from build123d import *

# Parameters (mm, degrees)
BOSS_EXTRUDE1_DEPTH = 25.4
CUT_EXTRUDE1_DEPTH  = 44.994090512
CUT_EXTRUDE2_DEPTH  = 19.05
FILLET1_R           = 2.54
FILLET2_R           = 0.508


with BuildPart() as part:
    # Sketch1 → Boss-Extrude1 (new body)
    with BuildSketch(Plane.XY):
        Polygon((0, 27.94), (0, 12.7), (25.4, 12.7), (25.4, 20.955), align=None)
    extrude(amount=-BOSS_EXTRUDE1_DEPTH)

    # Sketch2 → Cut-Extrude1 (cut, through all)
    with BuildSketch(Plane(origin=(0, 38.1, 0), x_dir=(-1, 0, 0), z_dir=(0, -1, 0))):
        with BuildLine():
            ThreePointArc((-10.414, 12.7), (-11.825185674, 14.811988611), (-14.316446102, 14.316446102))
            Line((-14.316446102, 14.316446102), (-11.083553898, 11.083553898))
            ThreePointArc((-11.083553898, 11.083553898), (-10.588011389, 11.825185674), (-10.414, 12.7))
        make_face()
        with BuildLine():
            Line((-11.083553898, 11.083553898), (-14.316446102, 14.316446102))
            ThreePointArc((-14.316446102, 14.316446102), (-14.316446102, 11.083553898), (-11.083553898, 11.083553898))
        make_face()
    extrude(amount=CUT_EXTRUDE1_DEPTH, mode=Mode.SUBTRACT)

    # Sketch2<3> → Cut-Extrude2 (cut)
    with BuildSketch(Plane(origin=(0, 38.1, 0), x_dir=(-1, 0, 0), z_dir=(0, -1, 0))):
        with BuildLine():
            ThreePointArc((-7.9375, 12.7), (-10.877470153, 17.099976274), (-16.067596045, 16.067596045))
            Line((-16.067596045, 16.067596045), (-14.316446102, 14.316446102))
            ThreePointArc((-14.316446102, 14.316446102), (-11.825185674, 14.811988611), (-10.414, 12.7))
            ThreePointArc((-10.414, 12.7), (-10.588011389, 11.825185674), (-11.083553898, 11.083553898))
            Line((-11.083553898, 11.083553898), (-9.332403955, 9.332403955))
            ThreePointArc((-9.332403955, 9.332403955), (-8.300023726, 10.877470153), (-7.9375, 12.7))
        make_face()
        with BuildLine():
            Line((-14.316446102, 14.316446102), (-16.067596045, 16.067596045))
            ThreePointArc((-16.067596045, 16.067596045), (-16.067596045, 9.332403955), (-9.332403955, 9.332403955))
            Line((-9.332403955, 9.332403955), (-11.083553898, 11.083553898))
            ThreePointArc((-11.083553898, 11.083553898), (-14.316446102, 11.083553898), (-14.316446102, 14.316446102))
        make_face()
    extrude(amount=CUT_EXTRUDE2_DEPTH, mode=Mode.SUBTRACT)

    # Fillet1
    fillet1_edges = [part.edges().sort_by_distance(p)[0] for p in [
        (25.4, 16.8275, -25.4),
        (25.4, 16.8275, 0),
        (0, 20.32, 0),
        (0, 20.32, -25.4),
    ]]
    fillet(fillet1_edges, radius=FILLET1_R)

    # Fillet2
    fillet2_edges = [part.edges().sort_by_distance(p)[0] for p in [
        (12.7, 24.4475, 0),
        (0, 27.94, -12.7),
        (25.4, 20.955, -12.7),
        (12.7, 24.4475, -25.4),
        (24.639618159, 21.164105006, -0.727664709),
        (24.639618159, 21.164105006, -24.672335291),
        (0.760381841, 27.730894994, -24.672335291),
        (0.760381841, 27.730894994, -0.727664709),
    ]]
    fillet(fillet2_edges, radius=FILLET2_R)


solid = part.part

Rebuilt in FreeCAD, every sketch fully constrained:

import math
import FreeCAD as App
import Part
import Sketcher
from FreeCAD import Vector
Q = App.Units.Quantity


def edges_at(feature, points):
    """Names of the edges that pass closest to the given points."""
    edges = feature.Shape.Edges
    near = lambda p: min(range(len(edges)), key=lambda i: edges[i].distToShape(Part.Vertex(*p))[0])
    return sorted({f"Edge{near(p) + 1}" for p in points})


def add_polygon(sketch, points):
    """Adds a closed chain of lines whose ends are joined by coincident constraints."""
    first, n = sketch.GeometryCount, len(points)
    for a, b in zip(points, points[1:] + points[:1]):
        sketch.addGeometry(Part.LineSegment(App.Vector(*a, 0), App.Vector(*b, 0)), False)
    for i in range(n):
        sketch.addConstraint(Sketcher.Constraint("Coincident", first + i, 2, first + (i + 1) % n, 1))

doc = App.newDocument("Part")
body = doc.addObject("PartDesign::Body", "Body")

# Sketch on XY plane
sketch1 = body.newObject("Sketcher::SketchObject", "Sketch")
sketch1.AttachmentSupport = (doc.getObject("XY_Plane"), [""])
sketch1.MapMode = "FlatFace"
add_polygon(sketch1, [(0, 28), (0, 13), (25, 13), (25, 21)])  # lines 0-3
sketch1.addConstraint([
    Sketcher.Constraint("Vertical", 0),
    Sketcher.Constraint("Horizontal", 1),
    Sketcher.Constraint("Vertical", 2),
    Sketcher.Constraint("PointOnObject", 0, 2, -2),
    Sketcher.Constraint("DistanceX", 1, 1, 1, 2, Q("1 in")),
    Sketcher.Constraint("DistanceY", 0, 2, 0, 1, Q("0.6 in")),
    Sketcher.Constraint("DistanceY", -1, 1, 0, 2, Q("0.5 in")),
    Sketcher.Constraint("DistanceY", 2, 1, 2, 2, Q("0.325 in")),
])
pad1 = body.newObject("PartDesign::Pad", "Pad")
pad1.Profile = sketch1
pad1.Length = Q("1 in")
pad1.Reversed = True

# Sketch on XZ plane
sketch2 = body.newObject("Sketcher::SketchObject", "Sketch001")
sketch2.AttachmentSupport = (doc.getObject("XZ_Plane"), [""])
sketch2.MapMode = "FlatFace"
sketch2.AttachmentOffset = App.Placement(Vector(0, 0, -1.5 * 25.4), App.Rotation())
sketch2.addGeometry([
    Part.ArcOfCircle(Part.Circle(Vector(12.7, -12.7, 0), Vector(0, 0, 1), 2.3), math.radians(-180), math.radians(-45)),
    Part.ArcOfCircle(Part.Circle(Vector(12.7, -12.7, 0), Vector(0, 0, 1), 2.3), math.radians(-45), math.radians(135)),
    Part.ArcOfCircle(Part.Circle(Vector(12.7, -12.7, 0), Vector(0, 0, 1), 2.3), math.radians(135), math.radians(180)),
], False)
sketch2.addConstraint([
    Sketcher.Constraint("Tangent", 0, 2, 1, 1),
    Sketcher.Constraint("Tangent", 1, 2, 2, 1),
    Sketcher.Constraint("Tangent", 2, 2, 0, 1),
    Sketcher.Constraint("Horizontal", 1, 3, 2, 2),
    Sketcher.Constraint("Radius", 0, Q("0.09 in")),
    Sketcher.Constraint("DistanceX", -1, 1, 0, 3, Q("0.5 in")),
    Sketcher.Constraint("DistanceY", 0, 3, -1, 1, Q("0.5 in")),
    Sketcher.Constraint("DistanceX", -1, 1, 0, 2, Q("14.316446 mm")),
    Sketcher.Constraint("DistanceX", -1, 1, 1, 2, Q("11.083554 mm")),
])
pocket1 = body.newObject("PartDesign::Pocket", "Pocket")
pocket1.Profile = sketch2
pocket1.Type = "ThroughAll"
pocket1.Reversed = True

# Sketch on XZ plane
sketch3 = body.newObject("Sketcher::SketchObject", "Sketch002")
sketch3.AttachmentSupport = (doc.getObject("XZ_Plane"), [""])
sketch3.MapMode = "FlatFace"
sketch3.AttachmentOffset = App.Placement(Vector(0, 0, -1.5 * 25.4), App.Rotation())
sketch3.addGeometry([
    Part.ArcOfCircle(Part.Circle(Vector(12.7, -12.7, 0), Vector(0, 0, 1), 4.8), math.radians(180), math.radians(315)),  # 0
    Part.ArcOfCircle(Part.Circle(Vector(12.7, -12.7, 0), Vector(0, 0, 1), 4.8), math.radians(-45), math.radians(135)),  # 1
    Part.ArcOfCircle(Part.Circle(Vector(12.7, -12.7, 0), Vector(0, 0, 1), 4.8), math.radians(135), math.radians(180)),  # 2
    Part.ArcOfCircle(Part.Circle(Vector(12.7, -12.7, 0), Vector(0, 0, 1), 2.3), math.radians(135), math.radians(180)),  # 3
    Part.ArcOfCircle(Part.Circle(Vector(12.7, -12.7, 0), Vector(0, 0, 1), 2.3), math.radians(-45), math.radians(135)),  # 4
    Part.ArcOfCircle(Part.Circle(Vector(12.7, -12.7, 0), Vector(0, 0, 1), 2.3), math.radians(-180), math.radians(-45)),  # 5
], False)
sketch3.addConstraint([
    Sketcher.Constraint("Tangent", 0, 2, 1, 1),
    Sketcher.Constraint("Tangent", 1, 2, 2, 1),
    Sketcher.Constraint("Tangent", 2, 2, 0, 1),
    Sketcher.Constraint("Tangent", 3, 1, 4, 2),
    Sketcher.Constraint("Tangent", 4, 1, 5, 2),
    Sketcher.Constraint("Tangent", 5, 1, 3, 2),
    Sketcher.Constraint("Coincident", 3, 3, 0, 3),
    Sketcher.Constraint("Horizontal", 5, 3, 2, 2),
    Sketcher.Constraint("Horizontal", 2, 2, 5, 1),
    Sketcher.Constraint("Radius", 3, Q("0.09 in")),
    Sketcher.Constraint("Radius", 0, Q("0.1875 in")),
    Sketcher.Constraint("DistanceX", -1, 1, 0, 3, Q("0.5 in")),
    Sketcher.Constraint("DistanceY", 0, 3, -1, 1, Q("0.5 in")),
    Sketcher.Constraint("DistanceX", -1, 1, 0, 2, Q("16.067596 mm")),
    Sketcher.Constraint("DistanceX", -1, 1, 1, 2, Q("9.332404 mm")),
    Sketcher.Constraint("DistanceX", -1, 1, 3, 1, Q("11.083554 mm")),
    Sketcher.Constraint("DistanceX", -1, 1, 4, 1, Q("14.316446 mm")),
])
pocket2 = body.newObject("PartDesign::Pocket", "Pocket001")
pocket2.Profile = sketch3
pocket2.Length = Q("0.75 in")
pocket2.Reversed = True
doc.recompute()

fillet = body.newObject("PartDesign::Fillet", "Fillet")
fillet.Base = (pocket2, edges_at(pocket2, [
    (25.4, 16.828, -25.4),
    (25.4, 16.828, 0),
    (0, 20.32, 0),
    (0, 20.32, -25.4),
]))
fillet.Radius = Q("0.1 in")
doc.recompute()

fillet2 = body.newObject("PartDesign::Fillet", "Fillet001")
fillet2.Base = (fillet, edges_at(fillet, [
    (12.7, 24.448, 0),
    (0, 27.94, -12.7),
    (25.4, 20.955, -12.7),
    (12.7, 24.448, -25.4),
    (24.64, 21.164, -0.728),
    (24.64, 21.164, -24.672),
    (0.76, 27.731, -24.672),
    (0.76, 27.731, -0.728),
]))
fillet2.Radius = Q("0.02 in")

doc.recompute()
